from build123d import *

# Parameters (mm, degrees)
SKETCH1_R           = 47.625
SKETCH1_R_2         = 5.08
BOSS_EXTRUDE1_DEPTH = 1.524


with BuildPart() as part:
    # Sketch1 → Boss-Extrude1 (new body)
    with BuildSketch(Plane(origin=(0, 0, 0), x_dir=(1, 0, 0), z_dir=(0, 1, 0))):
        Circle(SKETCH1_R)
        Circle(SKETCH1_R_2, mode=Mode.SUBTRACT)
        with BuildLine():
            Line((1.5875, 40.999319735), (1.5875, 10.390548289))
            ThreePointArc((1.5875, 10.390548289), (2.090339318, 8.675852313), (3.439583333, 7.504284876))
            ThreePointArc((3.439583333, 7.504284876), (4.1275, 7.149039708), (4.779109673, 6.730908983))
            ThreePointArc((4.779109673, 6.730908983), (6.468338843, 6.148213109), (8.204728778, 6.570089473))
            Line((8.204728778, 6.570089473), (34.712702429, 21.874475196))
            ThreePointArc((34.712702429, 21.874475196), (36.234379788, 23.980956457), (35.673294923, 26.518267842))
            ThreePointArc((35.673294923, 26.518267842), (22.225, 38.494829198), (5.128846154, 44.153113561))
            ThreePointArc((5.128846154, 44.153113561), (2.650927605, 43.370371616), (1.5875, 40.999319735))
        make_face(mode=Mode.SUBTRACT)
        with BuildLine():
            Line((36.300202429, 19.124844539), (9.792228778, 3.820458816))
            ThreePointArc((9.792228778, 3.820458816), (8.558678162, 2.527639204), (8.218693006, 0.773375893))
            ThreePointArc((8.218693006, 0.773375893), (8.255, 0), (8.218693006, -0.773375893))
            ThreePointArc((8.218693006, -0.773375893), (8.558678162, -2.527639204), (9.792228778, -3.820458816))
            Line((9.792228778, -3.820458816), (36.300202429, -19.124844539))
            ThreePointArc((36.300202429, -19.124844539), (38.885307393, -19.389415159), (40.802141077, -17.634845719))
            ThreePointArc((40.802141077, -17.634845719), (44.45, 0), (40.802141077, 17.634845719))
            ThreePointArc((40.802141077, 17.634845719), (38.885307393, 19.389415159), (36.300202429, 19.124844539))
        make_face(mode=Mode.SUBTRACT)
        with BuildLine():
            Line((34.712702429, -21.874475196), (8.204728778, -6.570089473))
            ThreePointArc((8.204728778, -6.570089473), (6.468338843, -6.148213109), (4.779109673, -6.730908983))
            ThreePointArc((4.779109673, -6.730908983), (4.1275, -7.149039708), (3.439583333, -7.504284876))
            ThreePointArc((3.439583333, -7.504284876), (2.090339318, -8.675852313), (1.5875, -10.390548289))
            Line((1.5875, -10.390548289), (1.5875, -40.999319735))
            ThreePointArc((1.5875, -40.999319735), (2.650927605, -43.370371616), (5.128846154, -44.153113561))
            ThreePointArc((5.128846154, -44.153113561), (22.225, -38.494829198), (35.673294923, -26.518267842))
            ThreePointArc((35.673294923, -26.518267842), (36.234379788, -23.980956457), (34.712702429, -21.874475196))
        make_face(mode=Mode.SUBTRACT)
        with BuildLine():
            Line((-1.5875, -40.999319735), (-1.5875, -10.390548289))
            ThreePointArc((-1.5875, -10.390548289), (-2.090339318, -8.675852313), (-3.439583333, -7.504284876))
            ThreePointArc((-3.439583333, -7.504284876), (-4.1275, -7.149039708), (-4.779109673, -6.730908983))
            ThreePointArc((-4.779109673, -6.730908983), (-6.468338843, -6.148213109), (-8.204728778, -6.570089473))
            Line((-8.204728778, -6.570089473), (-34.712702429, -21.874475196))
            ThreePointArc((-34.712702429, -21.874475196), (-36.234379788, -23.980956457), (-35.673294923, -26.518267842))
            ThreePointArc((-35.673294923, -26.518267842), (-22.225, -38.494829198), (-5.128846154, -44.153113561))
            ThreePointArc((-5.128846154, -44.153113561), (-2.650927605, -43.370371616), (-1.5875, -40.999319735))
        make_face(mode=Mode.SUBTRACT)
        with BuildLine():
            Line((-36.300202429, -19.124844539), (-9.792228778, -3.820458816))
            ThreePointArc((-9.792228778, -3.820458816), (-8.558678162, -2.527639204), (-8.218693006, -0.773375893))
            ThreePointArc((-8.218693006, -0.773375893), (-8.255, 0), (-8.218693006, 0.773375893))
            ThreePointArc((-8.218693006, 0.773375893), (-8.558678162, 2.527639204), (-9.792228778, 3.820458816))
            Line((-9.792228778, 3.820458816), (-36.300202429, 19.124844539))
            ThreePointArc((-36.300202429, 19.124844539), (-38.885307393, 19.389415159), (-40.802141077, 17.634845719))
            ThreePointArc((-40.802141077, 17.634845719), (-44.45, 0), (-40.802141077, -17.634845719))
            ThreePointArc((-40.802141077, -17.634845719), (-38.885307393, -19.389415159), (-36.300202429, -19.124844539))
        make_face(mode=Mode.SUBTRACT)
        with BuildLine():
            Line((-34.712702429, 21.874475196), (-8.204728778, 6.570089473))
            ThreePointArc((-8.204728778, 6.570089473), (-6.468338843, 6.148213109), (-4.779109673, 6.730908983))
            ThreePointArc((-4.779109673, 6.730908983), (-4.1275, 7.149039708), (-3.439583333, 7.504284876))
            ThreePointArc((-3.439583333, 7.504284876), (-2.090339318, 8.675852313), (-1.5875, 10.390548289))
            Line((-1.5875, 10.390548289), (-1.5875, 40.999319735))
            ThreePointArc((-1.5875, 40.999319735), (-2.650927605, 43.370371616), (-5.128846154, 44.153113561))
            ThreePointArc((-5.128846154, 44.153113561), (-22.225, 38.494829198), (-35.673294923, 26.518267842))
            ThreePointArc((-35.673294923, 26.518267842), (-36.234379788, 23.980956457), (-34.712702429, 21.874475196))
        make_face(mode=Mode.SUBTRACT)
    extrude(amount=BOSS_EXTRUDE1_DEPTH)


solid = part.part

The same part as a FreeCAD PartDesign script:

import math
import FreeCAD as App
import Part
import Sketcher

V = App.Vector
Q = App.Units.Quantity

doc = App.newDocument("Part")
body = doc.addObject("PartDesign::Body", "Body")

# Sketch on XZ plane
sketch1 = doc.addObject("Sketcher::SketchObject", "Sketch")
body.addObject(sketch1)
sketch1.AttachmentSupport = (doc.XZ_Plane, [""])
sketch1.MapMode = "FlatFace"
sketch1.addGeometry([
    Part.Circle(V(0, 0, 0), V(0, 0, 1), 47.6),  # 0
    Part.LineSegment(V(-1.6, 10.4, 0), V(-1.6, 41, 0)),  # 1
    Part.ArcOfCircle(Part.Circle(V(-4.8, 41, 0), V(0, 0, 1), 3.2), math.radians(0), math.radians(97)),  # 2
    Part.ArcOfCircle(Part.Circle(V(0, 0, 0), V(0, 0, 1), 44.5), math.radians(97), math.radians(143)),  # 3
    Part.ArcOfCircle(Part.Circle(V(-33.1, 24.6, 0), V(0, 0, 1), 3.2), math.radians(143), math.radians(240)),  # 4
    Part.LineSegment(V(-34.7, 21.9, 0), V(-8.2, 6.6, 0)),  # 5
    Part.ArcOfCircle(Part.Circle(V(-6.6, 9.3, 0), V(0, 0, 1), 3.2), math.radians(-120), math.radians(-55)),  # 6
    Part.ArcOfCircle(Part.Circle(V(0, 0, 0), V(0, 0, 1), 8.3), math.radians(114.62), math.radians(125.38)),  # 7
    Part.ArcOfCircle(Part.Circle(V(-4.8, 10.4, 0), V(0, 0, 1), 3.2), math.radians(-65), math.radians(0)),  # 8
    Part.LineSegment(V(8.2, 6.6, 0), V(34.7, 21.9, 0)),  # 9
    Part.ArcOfCircle(Part.Circle(V(33.1, 24.6, 0), V(0, 0, 1), 3.2), math.radians(-60), math.radians(37)),  # 10
    Part.ArcOfCircle(Part.Circle(V(0, 0, 0), V(0, 0, 1), 44.5), math.radians(37), math.radians(83)),  # 11
    Part.ArcOfCircle(Part.Circle(V(4.8, 41, 0), V(0, 0, 1), 3.2), math.radians(83), math.radians(180)),  # 12
    Part.LineSegment(V(1.6, 41, 0), V(1.6, 10.4, 0)),  # 13
    Part.ArcOfCircle(Part.Circle(V(4.8, 10.4, 0), V(0, 0, 1), 3.2), math.radians(180), math.radians(245)),  # 14
    Part.ArcOfCircle(Part.Circle(V(0, 0, 0), V(0, 0, 1), 8.3), math.radians(54.62), math.radians(65.38)),  # 15
    Part.ArcOfCircle(Part.Circle(V(6.6, 9.3, 0), V(0, 0, 1), 3.2), math.radians(-125), math.radians(-60)),  # 16
    Part.LineSegment(V(-9.8, 3.8, 0), V(-36.3, 19.1, 0)),  # 17
    Part.ArcOfCircle(Part.Circle(V(-37.9, 16.4, 0), V(0, 0, 1), 3.2), math.radians(60), math.radians(157)),  # 18
    Part.ArcOfCircle(Part.Circle(V(0, 0, 0), V(0, 0, 1), 44.5), math.radians(157), math.radians(203)),  # 19
    Part.ArcOfCircle(Part.Circle(V(-37.9, -16.4, 0), V(0, 0, 1), 3.2), math.radians(-157), math.radians(-60)),  # 20
    Part.LineSegment(V(-36.3, -19.1, 0), V(-9.8, -3.8, 0)),  # 21
    Part.ArcOfCircle(Part.Circle(V(-11.4, -1.1, 0), V(0, 0, 1), 3.2), math.radians(-60), math.radians(5)),  # 22
    Part.ArcOfCircle(Part.Circle(V(0, 0, 0), V(0, 0, 1), 8.3), math.radians(174.62), math.radians(185.38)),  # 23
    Part.ArcOfCircle(Part.Circle(V(-11.4, 1.1, 0), V(0, 0, 1), 3.2), math.radians(-5), math.radians(60)),  # 24
    Part.LineSegment(V(-8.2, -6.6, 0), V(-34.7, -21.9, 0)),  # 25
    Part.ArcOfCircle(Part.Circle(V(-33.1, -24.6, 0), V(0, 0, 1), 3.2), math.radians(120), math.radians(217)),  # 26
    Part.ArcOfCircle(Part.Circle(V(0, 0, 0), V(0, 0, 1), 44.5), math.radians(-143), math.radians(-97)),  # 27
    Part.ArcOfCircle(Part.Circle(V(-4.8, -41, 0), V(0, 0, 1), 3.2), math.radians(-97), math.radians(0)),  # 28
    Part.LineSegment(V(-1.6, -41, 0), V(-1.6, -10.4, 0)),  # 29
    Part.ArcOfCircle(Part.Circle(V(-4.8, -10.4, 0), V(0, 0, 1), 3.2), math.radians(0), math.radians(65)),  # 30
    Part.ArcOfCircle(Part.Circle(V(0, 0, 0), V(0, 0, 1), 8.3), math.radians(-125.38), math.radians(-114.62)),  # 31
    Part.ArcOfCircle(Part.Circle(V(-6.6, -9.3, 0), V(0, 0, 1), 3.2), math.radians(55), math.radians(120)),  # 32
    Part.Circle(V(0, 0, 0), V(0, 0, 1), 5.1),  # 33
    Part.LineSegment(V(9.8, -3.8, 0), V(36.3, -19.1, 0)),  # 34
    Part.ArcOfCircle(Part.Circle(V(37.9, -16.4, 0), V(0, 0, 1), 3.2), math.radians(-120), math.radians(-23)),  # 35
    Part.ArcOfCircle(Part.Circle(V(0, 0, 0), V(0, 0, 1), 44.5), math.radians(-23), math.radians(23)),  # 36
    Part.ArcOfCircle(Part.Circle(V(37.9, 16.4, 0), V(0, 0, 1), 3.2), math.radians(23), math.radians(120)),  # 37
    Part.LineSegment(V(36.3, 19.1, 0), V(9.8, 3.8, 0)),  # 38
    Part.ArcOfCircle(Part.Circle(V(11.4, 1.1, 0), V(0, 0, 1), 3.2), math.radians(120), math.radians(185)),  # 39
    Part.ArcOfCircle(Part.Circle(V(0, 0, 0), V(0, 0, 1), 8.3), math.radians(-5.38), math.radians(5.38)),  # 40
    Part.ArcOfCircle(Part.Circle(V(11.4, -1.1, 0), V(0, 0, 1), 3.2), math.radians(175), math.radians(240)),  # 41
    Part.LineSegment(V(1.6, -10.4, 0), V(1.6, -41, 0)),  # 42
    Part.ArcOfCircle(Part.Circle(V(4.8, -41, 0), V(0, 0, 1), 3.2), math.radians(180), math.radians(277)),  # 43
    Part.ArcOfCircle(Part.Circle(V(0, 0, 0), V(0, 0, 1), 44.5), math.radians(-83), math.radians(-37)),  # 44
    Part.ArcOfCircle(Part.Circle(V(33.1, -24.6, 0), V(0, 0, 1), 3.2), math.radians(-37), math.radians(60)),  # 45
    Part.LineSegment(V(34.7, -21.9, 0), V(8.2, -6.6, 0)),  # 46
    Part.ArcOfCircle(Part.Circle(V(6.6, -9.3, 0), V(0, 0, 1), 3.2), math.radians(60), math.radians(125)),  # 47
    Part.ArcOfCircle(Part.Circle(V(0, 0, 0), V(0, 0, 1), 8.3), math.radians(-65.38), math.radians(-54.62)),  # 48
    Part.ArcOfCircle(Part.Circle(V(4.8, -10.4, 0), V(0, 0, 1), 3.2), math.radians(115), math.radians(180)),  # 49
], False)
sketch1.addConstraint([
    Sketcher.Constraint("Tangent", 1, 2, 2, 1),
    Sketcher.Constraint("Tangent", 2, 2, 3, 1),
    Sketcher.Constraint("Tangent", 3, 2, 4, 1),
    Sketcher.Constraint("Tangent", 4, 2, 5, 1),
    Sketcher.Constraint("Tangent", 5, 2, 6, 1),
    Sketcher.Constraint("Tangent", 6, 2, 7, 2),
    Sketcher.Constraint("Tangent", 7, 1, 8, 1),
    Sketcher.Constraint("Tangent", 8, 2, 1, 1),
    Sketcher.Constraint("Tangent", 9, 2, 10, 1),
    Sketcher.Constraint("Tangent", 10, 2, 11, 1),
    Sketcher.Constraint("Tangent", 11, 2, 12, 1),
    Sketcher.Constraint("Tangent", 12, 2, 13, 1),
    Sketcher.Constraint("Tangent", 13, 2, 14, 1),
    Sketcher.Constraint("Tangent", 14, 2, 15, 2),
    Sketcher.Constraint("Tangent", 15, 1, 16, 1),
    Sketcher.Constraint("Tangent", 16, 2, 9, 1),
    Sketcher.Constraint("Tangent", 17, 2, 18, 1),
    Sketcher.Constraint("Tangent", 18, 2, 19, 1),
    Sketcher.Constraint("Tangent", 19, 2, 20, 1),
    Sketcher.Constraint("Tangent", 20, 2, 21, 1),
    Sketcher.Constraint("Tangent", 21, 2, 22, 1),
    Sketcher.Constraint("Tangent", 22, 2, 23, 2),
    Sketcher.Constraint("Tangent", 23, 1, 24, 1),
    Sketcher.Constraint("Tangent", 24, 2, 17, 1),
    Sketcher.Constraint("Tangent", 25, 2, 26, 1),
    Sketcher.Constraint("Tangent", 26, 2, 27, 1),
    Sketcher.Constraint("Tangent", 27, 2, 28, 1),
    Sketcher.Constraint("Tangent", 28, 2, 29, 1),
    Sketcher.Constraint("Tangent", 29, 2, 30, 1),
    Sketcher.Constraint("Tangent", 30, 2, 31, 2),
    Sketcher.Constraint("Tangent", 31, 1, 32, 1),
    Sketcher.Constraint("Tangent", 32, 2, 25, 1),
    Sketcher.Constraint("Tangent", 34, 2, 35, 1),
    Sketcher.Constraint("Tangent", 35, 2, 36, 1),
    Sketcher.Constraint("Tangent", 36, 2, 37, 1),
    Sketcher.Constraint("Tangent", 37, 2, 38, 1),
    Sketcher.Constraint("Tangent", 38, 2, 39, 1),
    Sketcher.Constraint("Tangent", 39, 2, 40, 2),
    Sketcher.Constraint("Tangent", 40, 1, 41, 1),
    Sketcher.Constraint("Tangent", 41, 2, 34, 1),
    Sketcher.Constraint("Tangent", 42, 2, 43, 1),
    Sketcher.Constraint("Tangent", 43, 2, 44, 1),
    Sketcher.Constraint("Tangent", 44, 2, 45, 1),
    Sketcher.Constraint("Tangent", 45, 2, 46, 1),
    Sketcher.Constraint("Tangent", 46, 2, 47, 1),
    Sketcher.Constraint("Tangent", 47, 2, 48, 2),
    Sketcher.Constraint("Tangent", 48, 1, 49, 1),
    Sketcher.Constraint("Tangent", 49, 2, 42, 1),
    Sketcher.Constraint("Vertical", 1),
    Sketcher.Constraint("Vertical", 13),
    Sketcher.Constraint("Vertical", 29),
    Sketcher.Constraint("Vertical", 42),
    Sketcher.Constraint("Coincident", 0, 3, -1, 1),
    Sketcher.Constraint("Coincident", 3, 3, -1, 1),
    Sketcher.Constraint("Coincident", 7, 3, -1, 1),
    Sketcher.Constraint("Coincident", 11, 3, -1, 1),
    Sketcher.Constraint("Coincident", 15, 3, -1, 1),
    Sketcher.Constraint("Coincident", 19, 3, -1, 1),
    Sketcher.Constraint("Coincident", 23, 3, -1, 1),
    Sketcher.Constraint("Coincident", 27, 3, -1, 1),
    Sketcher.Constraint("Coincident", 31, 3, -1, 1),
    Sketcher.Constraint("Coincident", 33, 3, -1, 1),
    Sketcher.Constraint("Coincident", 36, 3, -1, 1),
    Sketcher.Constraint("Coincident", 40, 3, -1, 1),
    Sketcher.Constraint("Coincident", 44, 3, -1, 1),
    Sketcher.Constraint("Coincident", 48, 3, -1, 1),
    Sketcher.Constraint("Equal", 2, 4),
    Sketcher.Constraint("Equal", 4, 6),
    Sketcher.Constraint("Equal", 6, 8),
    Sketcher.Constraint("Equal", 8, 10),
    Sketcher.Constraint("Equal", 3, 11),
    Sketcher.Constraint("Equal", 10, 12),
    Sketcher.Constraint("Equal", 12, 14),
    Sketcher.Constraint("Equal", 7, 15),
    Sketcher.Constraint("Equal", 14, 16),
    Sketcher.Constraint("Equal", 16, 18),
    Sketcher.Constraint("Equal", 11, 19),
    Sketcher.Constraint("Equal", 18, 20),
    Sketcher.Constraint("Equal", 20, 22),
    Sketcher.Constraint("Equal", 15, 23),
    Sketcher.Constraint("Equal", 22, 24),
    Sketcher.Constraint("Equal", 24, 26),
    Sketcher.Constraint("Equal", 19, 27),
    Sketcher.Constraint("Equal", 26, 28),
    Sketcher.Constraint("Equal", 28, 30),
    Sketcher.Constraint("Equal", 23, 31),
    Sketcher.Constraint("Equal", 30, 32),
    Sketcher.Constraint("Equal", 32, 35),
    Sketcher.Constraint("Equal", 27, 36),
    Sketcher.Constraint("Equal", 35, 37),
    Sketcher.Constraint("Equal", 37, 39),
    Sketcher.Constraint("Equal", 31, 40),
    Sketcher.Constraint("Equal", 39, 41),
    Sketcher.Constraint("Equal", 41, 43),
    Sketcher.Constraint("Equal", 36, 44),
    Sketcher.Constraint("Equal", 43, 45),
    Sketcher.Constraint("Equal", 45, 47),
    Sketcher.Constraint("Equal", 40, 48),
    Sketcher.Constraint("Equal", 47, 49),
    Sketcher.Constraint("Symmetric", 9, 2, 25, 2, -1, 1),
    Sketcher.Constraint("Symmetric", 17, 2, 34, 2, -1, 1),
    Sketcher.Constraint("Symmetric", 20, 2, 37, 2, -1, 1),
    Sketcher.Constraint("Symmetric", 4, 2, 45, 2, -1, 1),
    Sketcher.Constraint("Symmetric", 4, 2, 9, 2, -2),
    Sketcher.Constraint("Symmetric", 20, 2, 34, 2, -2),
    Sketcher.Constraint("Parallel", 5, 17),
    Sketcher.Constraint("Horizontal", 2, 3, 12, 3),
    Sketcher.Constraint("Horizontal", 28, 3, 43, 3),
    Sketcher.Constraint("Vertical", 8, 3, 28, 3),
    Sketcher.Constraint("Equal", 9, 17),
    Sketcher.Constraint("Diameter", 33, Q("0.4 in")),
    Sketcher.Constraint("Diameter", 0, Q("3.75 in")),
    Sketcher.Constraint("Radius", 3, Q("1.75 in")),
    Sketcher.Constraint("Angle", 5, Q("-30 deg")),
    Sketcher.Constraint("Radius", 2, Q("0.125 in")),
    Sketcher.Constraint("Radius", 7, Q("0.325 in")),
    Sketcher.Constraint("DistanceX", 2, 3, -1, 1, Q("0.1875 in")),
    Sketcher.Constraint("DistanceY", -1, 1, 4, 2, Q("0.8611998 in")),
])
pad1 = doc.addObject("PartDesign::Pad", "Pad")
body.addObject(pad1)
pad1.Profile = sketch1
pad1.Length = Q("0.06 in")
pad1.Reversed = True

doc.recompute()
